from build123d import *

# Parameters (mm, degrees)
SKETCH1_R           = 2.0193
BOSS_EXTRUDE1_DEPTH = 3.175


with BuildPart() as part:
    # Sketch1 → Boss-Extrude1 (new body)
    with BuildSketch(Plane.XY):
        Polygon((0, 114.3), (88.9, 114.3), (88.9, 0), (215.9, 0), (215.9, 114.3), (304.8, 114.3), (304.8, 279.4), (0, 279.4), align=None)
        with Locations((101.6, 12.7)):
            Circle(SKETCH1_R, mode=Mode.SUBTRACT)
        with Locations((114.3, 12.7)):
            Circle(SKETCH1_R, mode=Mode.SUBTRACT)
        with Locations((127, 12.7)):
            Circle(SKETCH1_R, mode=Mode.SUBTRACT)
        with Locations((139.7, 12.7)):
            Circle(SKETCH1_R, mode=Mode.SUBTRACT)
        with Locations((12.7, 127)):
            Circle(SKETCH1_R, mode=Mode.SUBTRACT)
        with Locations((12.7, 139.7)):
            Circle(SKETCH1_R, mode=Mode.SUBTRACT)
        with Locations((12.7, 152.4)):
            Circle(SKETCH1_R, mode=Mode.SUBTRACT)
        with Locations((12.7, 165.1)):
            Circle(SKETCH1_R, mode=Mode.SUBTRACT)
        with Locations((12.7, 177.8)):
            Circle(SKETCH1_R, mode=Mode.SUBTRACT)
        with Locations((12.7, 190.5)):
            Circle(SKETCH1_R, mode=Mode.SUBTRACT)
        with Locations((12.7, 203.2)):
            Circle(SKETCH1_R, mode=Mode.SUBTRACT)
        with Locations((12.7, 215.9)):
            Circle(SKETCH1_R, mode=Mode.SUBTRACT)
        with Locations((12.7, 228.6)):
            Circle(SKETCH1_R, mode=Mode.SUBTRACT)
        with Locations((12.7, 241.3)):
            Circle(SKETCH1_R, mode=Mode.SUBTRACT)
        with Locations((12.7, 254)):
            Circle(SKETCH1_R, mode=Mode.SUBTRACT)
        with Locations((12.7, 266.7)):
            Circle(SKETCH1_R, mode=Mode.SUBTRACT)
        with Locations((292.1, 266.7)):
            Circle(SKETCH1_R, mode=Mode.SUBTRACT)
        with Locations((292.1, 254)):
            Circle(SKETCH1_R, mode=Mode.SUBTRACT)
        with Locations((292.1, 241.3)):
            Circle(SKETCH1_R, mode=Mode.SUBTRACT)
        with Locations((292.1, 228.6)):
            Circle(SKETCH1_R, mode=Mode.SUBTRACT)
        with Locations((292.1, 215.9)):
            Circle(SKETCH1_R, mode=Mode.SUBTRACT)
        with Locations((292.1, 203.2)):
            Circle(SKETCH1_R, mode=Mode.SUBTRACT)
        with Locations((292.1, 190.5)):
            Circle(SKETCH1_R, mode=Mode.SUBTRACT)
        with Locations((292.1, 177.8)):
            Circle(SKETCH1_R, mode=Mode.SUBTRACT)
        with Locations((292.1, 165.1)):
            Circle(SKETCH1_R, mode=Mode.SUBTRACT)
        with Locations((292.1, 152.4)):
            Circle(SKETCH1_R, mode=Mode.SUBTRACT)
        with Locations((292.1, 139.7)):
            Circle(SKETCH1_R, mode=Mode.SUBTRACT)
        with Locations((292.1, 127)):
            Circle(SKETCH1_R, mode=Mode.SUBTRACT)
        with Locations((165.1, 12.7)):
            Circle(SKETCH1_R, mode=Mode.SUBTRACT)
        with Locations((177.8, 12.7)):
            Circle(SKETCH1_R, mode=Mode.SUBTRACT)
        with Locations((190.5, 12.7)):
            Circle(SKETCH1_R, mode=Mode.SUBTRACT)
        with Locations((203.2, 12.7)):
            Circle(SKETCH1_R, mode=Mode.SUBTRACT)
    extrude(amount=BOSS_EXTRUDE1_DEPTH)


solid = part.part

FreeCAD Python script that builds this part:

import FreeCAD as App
import Part
import Sketcher
Q = App.Units.Quantity

doc = App.newDocument("Part")
body = doc.addObject("PartDesign::Body", "Body")

sketch1 = body.newObject("Sketcher::SketchObject", "Sketch")
sketch1.AttachmentSupport = (doc.getObject("XY_Plane"), [""])
sketch1.MapMode = "FlatFace"
sketch1.addGeometry(Part.LineSegment(App.Vector(0, 114.3, 0), App.Vector(88.9, 114.3, 0)), False)
sketch1.addGeometry(Part.LineSegment(App.Vector(88.9, 114.3, 0), App.Vector(88.9, 0, 0)), False)
sketch1.addGeometry(Part.LineSegment(App.Vector(88.9, 0, 0), App.Vector(215.9, 0, 0)), False)
sketch1.addGeometry(Part.LineSegment(App.Vector(215.9, 0, 0), App.Vector(215.9, 114.3, 0)), False)
sketch1.addGeometry(Part.LineSegment(App.Vector(215.9, 114.3, 0), App.Vector(304.8, 114.3, 0)), False)
sketch1.addGeometry(Part.LineSegment(App.Vector(304.8, 114.3, 0), App.Vector(304.8, 279.4, 0)), False)
sketch1.addGeometry(Part.LineSegment(App.Vector(304.8, 279.4, 0), App.Vector(0, 279.4, 0)), False)
sketch1.addGeometry(Part.LineSegment(App.Vector(0, 279.4, 0), App.Vector(0, 114.3, 0)), False)
sketch1.addGeometry(Part.Circle(App.Vector(101.6, 12.7, 0), App.Vector(0, 0, 1), 2), False)
sketch1.addGeometry(Part.Circle(App.Vector(114.3, 12.7, 0), App.Vector(0, 0, 1), 2), False)
sketch1.addGeometry(Part.Circle(App.Vector(127, 12.7, 0), App.Vector(0, 0, 1), 2), False)
sketch1.addGeometry(Part.Circle(App.Vector(139.7, 12.7, 0), App.Vector(0, 0, 1), 2), False)
sketch1.addGeometry(Part.Circle(App.Vector(12.7, 127, 0), App.Vector(0, 0, 1), 2), False)
sketch1.addGeometry(Part.Circle(App.Vector(165.1, 12.7, 0), App.Vector(0, 0, 1), 2), False)
sketch1.addGeometry(Part.Circle(App.Vector(177.8, 12.7, 0), App.Vector(0, 0, 1), 2), False)
sketch1.addGeometry(Part.Circle(App.Vector(190.5, 12.7, 0), App.Vector(0, 0, 1), 2), False)
sketch1.addGeometry(Part.Circle(App.Vector(203.2, 12.7, 0), App.Vector(0, 0, 1), 2), False)
sketch1.addGeometry(Part.Circle(App.Vector(292.1, 127, 0), App.Vector(0, 0, 1), 2), False)
sketch1.addGeometry(Part.Circle(App.Vector(12.7, 139.7, 0), App.Vector(0, 0, 1), 2), False)
sketch1.addGeometry(Part.Circle(App.Vector(12.7, 152.4, 0), App.Vector(0, 0, 1), 2), False)
sketch1.addGeometry(Part.Circle(App.Vector(12.7, 165.1, 0), App.Vector(0, 0, 1), 2), False)
sketch1.addGeometry(Part.Circle(App.Vector(12.7, 177.8, 0), App.Vector(0, 0, 1), 2), False)
sketch1.addGeometry(Part.Circle(App.Vector(12.7, 190.5, 0), App.Vector(0, 0, 1), 2), False)
sketch1.addGeometry(Part.Circle(App.Vector(12.7, 203.2, 0), App.Vector(0, 0, 1), 2), False)
sketch1.addGeometry(Part.Circle(App.Vector(12.7, 215.9, 0), App.Vector(0, 0, 1), 2), False)
sketch1.addGeometry(Part.Circle(App.Vector(12.7, 228.6, 0), App.Vector(0, 0, 1), 2), False)
sketch1.addGeometry(Part.Circle(App.Vector(12.7, 241.3, 0), App.Vector(0, 0, 1), 2), False)
sketch1.addGeometry(Part.Circle(App.Vector(12.7, 254, 0), App.Vector(0, 0, 1), 2), False)
sketch1.addGeometry(Part.Circle(App.Vector(12.7, 266.7, 0), App.Vector(0, 0, 1), 2), False)
sketch1.addGeometry(Part.Circle(App.Vector(292.1, 139.7, 0), App.Vector(0, 0, 1), 2), False)
sketch1.addGeometry(Part.Circle(App.Vector(292.1, 152.4, 0), App.Vector(0, 0, 1), 2), False)
sketch1.addGeometry(Part.Circle(App.Vector(292.1, 165.1, 0), App.Vector(0, 0, 1), 2), False)
sketch1.addGeometry(Part.Circle(App.Vector(292.1, 177.8, 0), App.Vector(0, 0, 1), 2), False)
sketch1.addGeometry(Part.Circle(App.Vector(292.1, 190.5, 0), App.Vector(0, 0, 1), 2), False)
sketch1.addGeometry(Part.Circle(App.Vector(292.1, 203.2, 0), App.Vector(0, 0, 1), 2), False)
sketch1.addGeometry(Part.Circle(App.Vector(292.1, 215.9, 0), App.Vector(0, 0, 1), 2), False)
sketch1.addGeometry(Part.Circle(App.Vector(292.1, 228.6, 0), App.Vector(0, 0, 1), 2), False)
sketch1.addGeometry(Part.Circle(App.Vector(292.1, 241.3, 0), App.Vector(0, 0, 1), 2), False)
sketch1.addGeometry(Part.Circle(App.Vector(292.1, 254, 0), App.Vector(0, 0, 1), 2), False)
sketch1.addGeometry(Part.Circle(App.Vector(292.1, 266.7, 0), App.Vector(0, 0, 1), 2), False)
sketch1.addConstraint(Sketcher.Constraint("Coincident", 0, 2, 1, 1))
sketch1.addConstraint(Sketcher.Constraint("Coincident", 1, 2, 2, 1))
sketch1.addConstraint(Sketcher.Constraint("Coincident", 2, 2, 3, 1))
sketch1.addConstraint(Sketcher.Constraint("Coincident", 3, 2, 4, 1))
sketch1.addConstraint(Sketcher.Constraint("Coincident", 4, 2, 5, 1))
sketch1.addConstraint(Sketcher.Constraint("Coincident", 5, 2, 6, 1))
sketch1.addConstraint(Sketcher.Constraint("Coincident", 6, 2, 7, 1))
sketch1.addConstraint(Sketcher.Constraint("Coincident", 7, 2, 0, 1))
sketch1.addConstraint(Sketcher.Constraint("Horizontal", 0))
sketch1.addConstraint(Sketcher.Constraint("Vertical", 1))
sketch1.addConstraint(Sketcher.Constraint("Horizontal", 2))
sketch1.addConstraint(Sketcher.Constraint("Vertical", 3))
sketch1.addConstraint(Sketcher.Constraint("Horizontal", 4))
sketch1.addConstraint(Sketcher.Constraint("Vertical", 5))
sketch1.addConstraint(Sketcher.Constraint("Horizontal", 6))
sketch1.addConstraint(Sketcher.Constraint("Vertical", 7))
sketch1.addConstraint(Sketcher.Constraint("Equal", 8, 9))
sketch1.addConstraint(Sketcher.Constraint("Equal", 9, 10))
sketch1.addConstraint(Sketcher.Constraint("Equal", 10, 11))
sketch1.addConstraint(Sketcher.Constraint("Equal", 11, 12))
sketch1.addConstraint(Sketcher.Constraint("Equal", 12, 13))
sketch1.addConstraint(Sketcher.Constraint("Equal", 13, 14))
sketch1.addConstraint(Sketcher.Constraint("Equal", 14, 15))
sketch1.addConstraint(Sketcher.Constraint("Equal", 15, 16))
sketch1.addConstraint(Sketcher.Constraint("Equal", 16, 17))
sketch1.addConstraint(Sketcher.Constraint("Equal", 17, 18))
sketch1.addConstraint(Sketcher.Constraint("Equal", 18, 19))
sketch1.addConstraint(Sketcher.Constraint("Equal", 19, 20))
sketch1.addConstraint(Sketcher.Constraint("Equal", 20, 21))
sketch1.addConstraint(Sketcher.Constraint("Equal", 21, 22))
sketch1.addConstraint(Sketcher.Constraint("Equal", 22, 23))
sketch1.addConstraint(Sketcher.Constraint("Equal", 23, 24))
sketch1.addConstraint(Sketcher.Constraint("Equal", 24, 25))
sketch1.addConstraint(Sketcher.Constraint("Equal", 25, 26))
sketch1.addConstraint(Sketcher.Constraint("Equal", 26, 27))
sketch1.addConstraint(Sketcher.Constraint("Equal", 27, 28))
sketch1.addConstraint(Sketcher.Constraint("Equal", 28, 29))
sketch1.addConstraint(Sketcher.Constraint("Equal", 29, 30))
sketch1.addConstraint(Sketcher.Constraint("Equal", 30, 31))
sketch1.addConstraint(Sketcher.Constraint("Equal", 31, 32))
sketch1.addConstraint(Sketcher.Constraint("Equal", 32, 33))
sketch1.addConstraint(Sketcher.Constraint("Equal", 33, 34))
sketch1.addConstraint(Sketcher.Constraint("Equal", 34, 35))
sketch1.addConstraint(Sketcher.Constraint("Equal", 35, 36))
sketch1.addConstraint(Sketcher.Constraint("Equal", 36, 37))
sketch1.addConstraint(Sketcher.Constraint("Equal", 37, 38))
sketch1.addConstraint(Sketcher.Constraint("Equal", 38, 39))
sketch1.addConstraint(Sketcher.Constraint("PointOnObject", 1, 2, -1))
sketch1.addConstraint(Sketcher.Constraint("PointOnObject", 6, 2, -2))
sketch1.addConstraint(Sketcher.Constraint("Horizontal", 8, 3, 9, 3))
sketch1.addConstraint(Sketcher.Constraint("Horizontal", 9, 3, 10, 3))
sketch1.addConstraint(Sketcher.Constraint("Horizontal", 10, 3, 11, 3))
sketch1.addConstraint(Sketcher.Constraint("Horizontal", 11, 3, 13, 3))
sketch1.addConstraint(Sketcher.Constraint("Horizontal", 13, 3, 14, 3))
sketch1.addConstraint(Sketcher.Constraint("Horizontal", 14, 3, 15, 3))
sketch1.addConstraint(Sketcher.Constraint("Horizontal", 15, 3, 16, 3))
sketch1.addConstraint(Sketcher.Constraint("Horizontal", 12, 3, 17, 3))
sketch1.addConstraint(Sketcher.Constraint("Horizontal", 18, 3, 29, 3))
sketch1.addConstraint(Sketcher.Constraint("Horizontal", 19, 3, 30, 3))
sketch1.addConstraint(Sketcher.Constraint("Horizontal", 20, 3, 31, 3))
sketch1.addConstraint(Sketcher.Constraint("Horizontal", 21, 3, 32, 3))
sketch1.addConstraint(Sketcher.Constraint("Horizontal", 22, 3, 33, 3))
sketch1.addConstraint(Sketcher.Constraint("Horizontal", 23, 3, 34, 3))
sketch1.addConstraint(Sketcher.Constraint("Horizontal", 24, 3, 35, 3))
sketch1.addConstraint(Sketcher.Constraint("Horizontal", 25, 3, 36, 3))
sketch1.addConstraint(Sketcher.Constraint("Horizontal", 26, 3, 37, 3))
sketch1.addConstraint(Sketcher.Constraint("Horizontal", 27, 3, 38, 3))
sketch1.addConstraint(Sketcher.Constraint("Horizontal", 28, 3, 39, 3))
sketch1.addConstraint(Sketcher.Constraint("Horizontal", 0, 2, 3, 2))
sketch1.addConstraint(Sketcher.Constraint("Vertical", 12, 3, 18, 3))
sketch1.addConstraint(Sketcher.Constraint("Vertical", 18, 3, 19, 3))
sketch1.addConstraint(Sketcher.Constraint("Vertical", 19, 3, 20, 3))
sketch1.addConstraint(Sketcher.Constraint("Vertical", 20, 3, 21, 3))
sketch1.addConstraint(Sketcher.Constraint("Vertical", 21, 3, 22, 3))
sketch1.addConstraint(Sketcher.Constraint("Vertical", 22, 3, 23, 3))
sketch1.addConstraint(Sketcher.Constraint("Vertical", 23, 3, 24, 3))
sketch1.addConstraint(Sketcher.Constraint("Vertical", 24, 3, 25, 3))
sketch1.addConstraint(Sketcher.Constraint("Vertical", 25, 3, 26, 3))
sketch1.addConstraint(Sketcher.Constraint("Vertical", 26, 3, 27, 3))
sketch1.addConstraint(Sketcher.Constraint("Vertical", 27, 3, 28, 3))
sketch1.addConstraint(Sketcher.Constraint("Vertical", 17, 3, 29, 3))
sketch1.addConstraint(Sketcher.Constraint("Vertical", 29, 3, 30, 3))
sketch1.addConstraint(Sketcher.Constraint("Vertical", 30, 3, 31, 3))
sketch1.addConstraint(Sketcher.Constraint("Vertical", 31, 3, 32, 3))
sketch1.addConstraint(Sketcher.Constraint("Vertical", 32, 3, 33, 3))
sketch1.addConstraint(Sketcher.Constraint("Vertical", 33, 3, 34, 3))
sketch1.addConstraint(Sketcher.Constraint("Vertical", 34, 3, 35, 3))
sketch1.addConstraint(Sketcher.Constraint("Vertical", 35, 3, 36, 3))
sketch1.addConstraint(Sketcher.Constraint("Vertical", 36, 3, 37, 3))
sketch1.addConstraint(Sketcher.Constraint("Vertical", 37, 3, 38, 3))
sketch1.addConstraint(Sketcher.Constraint("Vertical", 38, 3, 39, 3))
sketch1.addConstraint(Sketcher.Constraint("Equal", 0, 4))
sketch1.addConstraint(Sketcher.Constraint("DistanceX", 2, 1, 2, 2, Q("5 in")))
sketch1.addConstraint(Sketcher.Constraint("DistanceX", 6, 2, 6, 1, Q("12 in")))
sketch1.addConstraint(Sketcher.Constraint("Diameter", 8, Q("0.159 in")))
sketch1.addConstraint(Sketcher.Constraint("DistanceY", 1, 2, 1, 1, Q("4.5 in")))
sketch1.addConstraint(Sketcher.Constraint("DistanceY", 5, 1, 5, 2, Q("6.5 in")))
sketch1.addConstraint(Sketcher.Constraint("DistanceX", -1, 1, 8, 3, Q("4 in")))
sketch1.addConstraint(Sketcher.Constraint("DistanceX", -1, 1, 10, 3, Q("5 in")))
sketch1.addConstraint(Sketcher.Constraint("DistanceY", -1, 1, 12, 3, Q("5 in")))
sketch1.addConstraint(Sketcher.Constraint("DistanceX", -1, 1, 14, 3, Q("7 in")))
sketch1.addConstraint(Sketcher.Constraint("DistanceX", -1, 1, 16, 3, Q("8 in")))
sketch1.addConstraint(Sketcher.Constraint("DistanceY", -1, 1, 19, 3, Q("6 in")))
sketch1.addConstraint(Sketcher.Constraint("DistanceY", -1, 1, 21, 3, Q("7 in")))
sketch1.addConstraint(Sketcher.Constraint("DistanceY", -1, 1, 23, 3, Q("8 in")))
sketch1.addConstraint(Sketcher.Constraint("DistanceY", -1, 1, 25, 3, Q("9 in")))
sketch1.addConstraint(Sketcher.Constraint("DistanceY", -1, 1, 27, 3, Q("10 in")))
sketch1.addConstraint(Sketcher.Constraint("DistanceX", 9, 3, 11, 3, Q("1 in")))
sketch1.addConstraint(Sketcher.Constraint("DistanceX", 12, 3, 9, 3, Q("4 in")))
sketch1.addConstraint(Sketcher.Constraint("DistanceX", 11, 3, 13, 3, Q("1 in")))
sketch1.addConstraint(Sketcher.Constraint("DistanceX", 13, 3, 15, 3, Q("1 in")))
sketch1.addConstraint(Sketcher.Constraint("DistanceX", 15, 3, 17, 3, Q("4 in")))
sketch1.addConstraint(Sketcher.Constraint("DistanceY", 8, 3, 18, 3, Q("5 in")))
sketch1.addConstraint(Sketcher.Constraint("DistanceY", 18, 3, 20, 3, Q("1 in")))
sketch1.addConstraint(Sketcher.Constraint("DistanceY", 20, 3, 22, 3, Q("1 in")))
sketch1.addConstraint(Sketcher.Constraint("DistanceY", 22, 3, 24, 3, Q("1 in")))
sketch1.addConstraint(Sketcher.Constraint("DistanceY", 24, 3, 26, 3, Q("1 in")))
sketch1.addConstraint(Sketcher.Constraint("DistanceY", 26, 3, 28, 3, Q("1 in")))
sketch1.addConstraint(Sketcher.Constraint("DistanceX", 12, 3, 0, 2, Q("3 in")))
sketch1.addConstraint(Sketcher.Constraint("DistanceY", 0, 2, 18, 3, Q("1 in")))
pad1 = body.newObject("PartDesign::Pad", "Pad")
pad1.Profile = sketch1
pad1.Length = Q("0.125 in")

doc.recompute()
